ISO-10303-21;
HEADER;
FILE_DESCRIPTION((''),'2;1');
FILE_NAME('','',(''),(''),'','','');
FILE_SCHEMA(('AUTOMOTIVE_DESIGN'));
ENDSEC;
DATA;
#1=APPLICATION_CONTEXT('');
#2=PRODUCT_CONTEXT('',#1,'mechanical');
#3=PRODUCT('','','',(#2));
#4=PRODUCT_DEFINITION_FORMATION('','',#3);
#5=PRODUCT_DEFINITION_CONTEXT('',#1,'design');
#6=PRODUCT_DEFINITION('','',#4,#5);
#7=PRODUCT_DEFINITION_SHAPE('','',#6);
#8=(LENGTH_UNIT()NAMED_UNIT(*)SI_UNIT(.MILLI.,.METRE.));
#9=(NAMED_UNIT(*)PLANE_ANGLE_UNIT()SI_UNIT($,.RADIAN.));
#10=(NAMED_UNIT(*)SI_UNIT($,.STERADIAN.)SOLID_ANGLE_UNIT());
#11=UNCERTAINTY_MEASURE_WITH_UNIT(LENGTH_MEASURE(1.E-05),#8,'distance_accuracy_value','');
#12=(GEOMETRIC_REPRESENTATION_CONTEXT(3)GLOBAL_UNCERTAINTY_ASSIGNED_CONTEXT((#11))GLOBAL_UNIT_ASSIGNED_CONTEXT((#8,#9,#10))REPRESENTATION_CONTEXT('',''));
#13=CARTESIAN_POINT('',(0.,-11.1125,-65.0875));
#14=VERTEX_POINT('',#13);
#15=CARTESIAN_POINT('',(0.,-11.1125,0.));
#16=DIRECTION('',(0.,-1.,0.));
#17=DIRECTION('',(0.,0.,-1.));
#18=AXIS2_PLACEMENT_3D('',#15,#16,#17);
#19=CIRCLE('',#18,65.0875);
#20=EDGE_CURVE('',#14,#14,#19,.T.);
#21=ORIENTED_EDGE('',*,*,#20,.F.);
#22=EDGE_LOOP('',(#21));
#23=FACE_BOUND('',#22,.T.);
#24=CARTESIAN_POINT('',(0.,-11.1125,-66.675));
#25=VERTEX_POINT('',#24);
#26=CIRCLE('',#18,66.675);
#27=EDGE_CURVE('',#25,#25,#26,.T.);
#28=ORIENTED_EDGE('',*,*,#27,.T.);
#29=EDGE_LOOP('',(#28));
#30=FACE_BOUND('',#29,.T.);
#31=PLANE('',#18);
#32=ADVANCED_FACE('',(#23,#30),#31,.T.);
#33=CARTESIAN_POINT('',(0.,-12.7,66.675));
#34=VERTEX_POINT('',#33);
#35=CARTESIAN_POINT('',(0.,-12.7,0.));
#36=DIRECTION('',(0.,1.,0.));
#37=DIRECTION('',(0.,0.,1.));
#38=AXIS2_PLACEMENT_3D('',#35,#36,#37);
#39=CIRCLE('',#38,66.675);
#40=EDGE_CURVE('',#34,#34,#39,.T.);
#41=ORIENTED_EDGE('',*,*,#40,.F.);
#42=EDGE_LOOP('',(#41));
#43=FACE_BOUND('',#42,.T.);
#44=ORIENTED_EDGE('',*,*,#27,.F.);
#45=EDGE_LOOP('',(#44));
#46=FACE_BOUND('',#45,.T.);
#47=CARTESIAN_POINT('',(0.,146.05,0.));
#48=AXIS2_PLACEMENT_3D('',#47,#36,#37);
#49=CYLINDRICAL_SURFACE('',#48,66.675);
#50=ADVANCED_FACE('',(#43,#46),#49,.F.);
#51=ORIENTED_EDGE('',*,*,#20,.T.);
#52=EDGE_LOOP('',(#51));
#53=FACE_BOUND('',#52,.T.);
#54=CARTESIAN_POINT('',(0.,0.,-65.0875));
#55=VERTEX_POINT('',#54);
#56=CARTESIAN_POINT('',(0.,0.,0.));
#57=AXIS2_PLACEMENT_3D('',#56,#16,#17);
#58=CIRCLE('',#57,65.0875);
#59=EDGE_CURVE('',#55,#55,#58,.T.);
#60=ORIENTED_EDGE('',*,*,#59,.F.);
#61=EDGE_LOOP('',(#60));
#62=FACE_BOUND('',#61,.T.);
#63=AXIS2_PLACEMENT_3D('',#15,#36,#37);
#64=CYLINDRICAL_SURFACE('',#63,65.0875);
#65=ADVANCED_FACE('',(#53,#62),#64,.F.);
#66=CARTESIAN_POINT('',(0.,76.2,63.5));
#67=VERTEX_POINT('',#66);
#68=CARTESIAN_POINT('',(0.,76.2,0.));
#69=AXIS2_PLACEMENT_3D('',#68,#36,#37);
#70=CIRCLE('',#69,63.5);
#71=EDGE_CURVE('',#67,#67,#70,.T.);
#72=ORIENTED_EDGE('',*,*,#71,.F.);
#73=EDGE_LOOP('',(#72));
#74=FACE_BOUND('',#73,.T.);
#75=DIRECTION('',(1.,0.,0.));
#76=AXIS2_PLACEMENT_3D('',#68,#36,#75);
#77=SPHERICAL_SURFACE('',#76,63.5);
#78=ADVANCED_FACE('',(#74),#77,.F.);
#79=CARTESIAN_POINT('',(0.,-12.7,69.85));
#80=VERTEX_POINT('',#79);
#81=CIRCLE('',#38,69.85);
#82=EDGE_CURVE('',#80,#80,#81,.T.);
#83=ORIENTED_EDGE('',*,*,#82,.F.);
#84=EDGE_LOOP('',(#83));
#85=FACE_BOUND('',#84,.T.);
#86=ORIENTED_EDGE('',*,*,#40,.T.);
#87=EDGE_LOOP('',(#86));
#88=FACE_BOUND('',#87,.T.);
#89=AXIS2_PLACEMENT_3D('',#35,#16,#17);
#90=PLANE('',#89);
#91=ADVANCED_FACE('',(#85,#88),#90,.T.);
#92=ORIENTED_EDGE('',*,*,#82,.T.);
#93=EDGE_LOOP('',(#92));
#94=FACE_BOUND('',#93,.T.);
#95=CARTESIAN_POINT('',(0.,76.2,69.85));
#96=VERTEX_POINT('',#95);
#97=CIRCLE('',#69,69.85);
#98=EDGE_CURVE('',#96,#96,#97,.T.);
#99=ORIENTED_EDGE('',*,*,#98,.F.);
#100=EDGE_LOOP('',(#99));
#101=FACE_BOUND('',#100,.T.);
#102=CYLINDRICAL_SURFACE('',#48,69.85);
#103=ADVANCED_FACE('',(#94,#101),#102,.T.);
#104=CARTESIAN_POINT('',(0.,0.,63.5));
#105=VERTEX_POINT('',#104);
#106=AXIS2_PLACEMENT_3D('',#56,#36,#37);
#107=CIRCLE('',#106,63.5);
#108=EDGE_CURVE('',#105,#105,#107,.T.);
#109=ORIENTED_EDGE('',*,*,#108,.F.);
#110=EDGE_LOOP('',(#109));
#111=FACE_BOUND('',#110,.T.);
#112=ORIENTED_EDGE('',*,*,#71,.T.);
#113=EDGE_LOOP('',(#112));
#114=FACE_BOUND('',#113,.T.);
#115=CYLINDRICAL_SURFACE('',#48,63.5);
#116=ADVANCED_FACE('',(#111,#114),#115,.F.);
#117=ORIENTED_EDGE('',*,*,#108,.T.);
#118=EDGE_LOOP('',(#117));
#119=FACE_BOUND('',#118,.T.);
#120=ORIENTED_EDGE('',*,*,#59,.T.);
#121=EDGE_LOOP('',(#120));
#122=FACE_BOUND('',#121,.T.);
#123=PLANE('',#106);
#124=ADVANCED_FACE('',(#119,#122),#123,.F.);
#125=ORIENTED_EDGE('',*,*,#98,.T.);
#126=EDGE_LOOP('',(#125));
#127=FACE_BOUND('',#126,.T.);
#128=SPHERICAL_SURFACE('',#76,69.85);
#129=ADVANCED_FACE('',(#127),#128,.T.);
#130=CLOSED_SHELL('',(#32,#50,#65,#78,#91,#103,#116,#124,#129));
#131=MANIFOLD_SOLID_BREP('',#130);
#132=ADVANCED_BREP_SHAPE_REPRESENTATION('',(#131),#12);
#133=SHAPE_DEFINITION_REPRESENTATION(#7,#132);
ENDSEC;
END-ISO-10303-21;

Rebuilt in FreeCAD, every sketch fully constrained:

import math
import FreeCAD as App
import Part
import Sketcher
from FreeCAD import Vector
Q = App.Units.Quantity

doc = App.newDocument("Part")
body = doc.addObject("PartDesign::Body", "Body")

# Sketch on XY plane
sketch1 = body.newObject("Sketcher::SketchObject", "Sketch")
sketch1.AttachmentSupport = (doc.getObject("XY_Plane"), [""])
sketch1.MapMode = "FlatFace"
sketch1.addGeometry([
    Part.ArcOfCircle(Part.Circle(Vector(0, 76.2, 0), Vector(0, 0, 1), 69.8), math.radians(0), math.radians(90)),  # 0
    Part.LineSegment(Vector(0, 146.1, 0), Vector(0, 139.7, 0)),  # 1
    Part.ArcOfCircle(Part.Circle(Vector(0, 76.2, 0), Vector(0, 0, 1), 63.5), math.radians(0), math.radians(90)),  # 2
    Part.LineSegment(Vector(63.5, 76.2, 0), Vector(63.5, 0, 0)),  # 3
    Part.LineSegment(Vector(63.5, 0, 0), Vector(66.7, 0, 0)),  # 4
    Part.LineSegment(Vector(66.7, 0, 0), Vector(66.7, -12.7, 0)),  # 5
    Part.LineSegment(Vector(66.7, -12.7, 0), Vector(69.8, -12.7, 0)),  # 6
    Part.LineSegment(Vector(69.8, -12.7, 0), Vector(69.8, 76.2, 0)),  # 7
], False)
sketch1.addConstraint([
    Sketcher.Constraint("Coincident", 0, 2, 1, 1),
    Sketcher.Constraint("Coincident", 1, 2, 2, 2),
    Sketcher.Constraint("Tangent", 2, 1, 3, 1),
    Sketcher.Constraint("Coincident", 3, 2, 4, 1),
    Sketcher.Constraint("Coincident", 4, 2, 5, 1),
    Sketcher.Constraint("Coincident", 5, 2, 6, 1),
    Sketcher.Constraint("Coincident", 6, 2, 7, 1),
    Sketcher.Constraint("Tangent", 7, 2, 0, 1),
    Sketcher.Constraint("Vertical", 1),
    Sketcher.Constraint("Vertical", 3),
    Sketcher.Constraint("Horizontal", 4),
    Sketcher.Constraint("Vertical", 5),
    Sketcher.Constraint("Horizontal", 6),
    Sketcher.Constraint("Vertical", 7),
    Sketcher.Constraint("Coincident", 2, 3, 0, 3),
    Sketcher.Constraint("PointOnObject", 0, 3, -2),
    Sketcher.Constraint("PointOnObject", 0, 2, -2),
    Sketcher.Constraint("PointOnObject", 3, 2, -1),
    Sketcher.Constraint("Equal", 4, 6),
    Sketcher.Constraint("Radius", 2, Q("2.5 in")),
    Sketcher.Constraint("DistanceY", 3, 2, 3, 1, Q("3 in")),
    Sketcher.Constraint("Radius", 0, Q("2.75 in")),
    Sketcher.Constraint("DistanceY", 5, 2, 5, 1, Q("0.5 in")),
])
revolution = body.newObject("PartDesign::Revolution", "Revolution")
revolution.Profile = sketch1
revolution.ReferenceAxis = (sketch1, ["V_Axis"])
revolution.Angle = 360

# Sketch on XZ plane
sketch2 = body.newObject("Sketcher::SketchObject", "Sketch001")
sketch2.AttachmentSupport = (doc.getObject("XZ_Plane"), [""])
sketch2.MapMode = "FlatFace"
sketch2.addGeometry([
    Part.Circle(Vector(0, 0, 0), Vector(0, 0, 1), 67),
    Part.Circle(Vector(0, 0, 0), Vector(0, 0, 1), 65),
], False)
sketch2.addConstraint([
    Sketcher.Constraint("Coincident", 0, 3, -1, 1),
    Sketcher.Constraint("Coincident", 1, 3, -1, 1),
    Sketcher.Constraint("Diameter", 0, Q("5.25 in")),
    Sketcher.Constraint("Diameter", 1, Q("5.125 in")),
])
pad1 = body.newObject("PartDesign::Pad", "Pad")
pad1.Profile = sketch2
pad1.Length = Q("0.4375 in")

doc.recompute()
